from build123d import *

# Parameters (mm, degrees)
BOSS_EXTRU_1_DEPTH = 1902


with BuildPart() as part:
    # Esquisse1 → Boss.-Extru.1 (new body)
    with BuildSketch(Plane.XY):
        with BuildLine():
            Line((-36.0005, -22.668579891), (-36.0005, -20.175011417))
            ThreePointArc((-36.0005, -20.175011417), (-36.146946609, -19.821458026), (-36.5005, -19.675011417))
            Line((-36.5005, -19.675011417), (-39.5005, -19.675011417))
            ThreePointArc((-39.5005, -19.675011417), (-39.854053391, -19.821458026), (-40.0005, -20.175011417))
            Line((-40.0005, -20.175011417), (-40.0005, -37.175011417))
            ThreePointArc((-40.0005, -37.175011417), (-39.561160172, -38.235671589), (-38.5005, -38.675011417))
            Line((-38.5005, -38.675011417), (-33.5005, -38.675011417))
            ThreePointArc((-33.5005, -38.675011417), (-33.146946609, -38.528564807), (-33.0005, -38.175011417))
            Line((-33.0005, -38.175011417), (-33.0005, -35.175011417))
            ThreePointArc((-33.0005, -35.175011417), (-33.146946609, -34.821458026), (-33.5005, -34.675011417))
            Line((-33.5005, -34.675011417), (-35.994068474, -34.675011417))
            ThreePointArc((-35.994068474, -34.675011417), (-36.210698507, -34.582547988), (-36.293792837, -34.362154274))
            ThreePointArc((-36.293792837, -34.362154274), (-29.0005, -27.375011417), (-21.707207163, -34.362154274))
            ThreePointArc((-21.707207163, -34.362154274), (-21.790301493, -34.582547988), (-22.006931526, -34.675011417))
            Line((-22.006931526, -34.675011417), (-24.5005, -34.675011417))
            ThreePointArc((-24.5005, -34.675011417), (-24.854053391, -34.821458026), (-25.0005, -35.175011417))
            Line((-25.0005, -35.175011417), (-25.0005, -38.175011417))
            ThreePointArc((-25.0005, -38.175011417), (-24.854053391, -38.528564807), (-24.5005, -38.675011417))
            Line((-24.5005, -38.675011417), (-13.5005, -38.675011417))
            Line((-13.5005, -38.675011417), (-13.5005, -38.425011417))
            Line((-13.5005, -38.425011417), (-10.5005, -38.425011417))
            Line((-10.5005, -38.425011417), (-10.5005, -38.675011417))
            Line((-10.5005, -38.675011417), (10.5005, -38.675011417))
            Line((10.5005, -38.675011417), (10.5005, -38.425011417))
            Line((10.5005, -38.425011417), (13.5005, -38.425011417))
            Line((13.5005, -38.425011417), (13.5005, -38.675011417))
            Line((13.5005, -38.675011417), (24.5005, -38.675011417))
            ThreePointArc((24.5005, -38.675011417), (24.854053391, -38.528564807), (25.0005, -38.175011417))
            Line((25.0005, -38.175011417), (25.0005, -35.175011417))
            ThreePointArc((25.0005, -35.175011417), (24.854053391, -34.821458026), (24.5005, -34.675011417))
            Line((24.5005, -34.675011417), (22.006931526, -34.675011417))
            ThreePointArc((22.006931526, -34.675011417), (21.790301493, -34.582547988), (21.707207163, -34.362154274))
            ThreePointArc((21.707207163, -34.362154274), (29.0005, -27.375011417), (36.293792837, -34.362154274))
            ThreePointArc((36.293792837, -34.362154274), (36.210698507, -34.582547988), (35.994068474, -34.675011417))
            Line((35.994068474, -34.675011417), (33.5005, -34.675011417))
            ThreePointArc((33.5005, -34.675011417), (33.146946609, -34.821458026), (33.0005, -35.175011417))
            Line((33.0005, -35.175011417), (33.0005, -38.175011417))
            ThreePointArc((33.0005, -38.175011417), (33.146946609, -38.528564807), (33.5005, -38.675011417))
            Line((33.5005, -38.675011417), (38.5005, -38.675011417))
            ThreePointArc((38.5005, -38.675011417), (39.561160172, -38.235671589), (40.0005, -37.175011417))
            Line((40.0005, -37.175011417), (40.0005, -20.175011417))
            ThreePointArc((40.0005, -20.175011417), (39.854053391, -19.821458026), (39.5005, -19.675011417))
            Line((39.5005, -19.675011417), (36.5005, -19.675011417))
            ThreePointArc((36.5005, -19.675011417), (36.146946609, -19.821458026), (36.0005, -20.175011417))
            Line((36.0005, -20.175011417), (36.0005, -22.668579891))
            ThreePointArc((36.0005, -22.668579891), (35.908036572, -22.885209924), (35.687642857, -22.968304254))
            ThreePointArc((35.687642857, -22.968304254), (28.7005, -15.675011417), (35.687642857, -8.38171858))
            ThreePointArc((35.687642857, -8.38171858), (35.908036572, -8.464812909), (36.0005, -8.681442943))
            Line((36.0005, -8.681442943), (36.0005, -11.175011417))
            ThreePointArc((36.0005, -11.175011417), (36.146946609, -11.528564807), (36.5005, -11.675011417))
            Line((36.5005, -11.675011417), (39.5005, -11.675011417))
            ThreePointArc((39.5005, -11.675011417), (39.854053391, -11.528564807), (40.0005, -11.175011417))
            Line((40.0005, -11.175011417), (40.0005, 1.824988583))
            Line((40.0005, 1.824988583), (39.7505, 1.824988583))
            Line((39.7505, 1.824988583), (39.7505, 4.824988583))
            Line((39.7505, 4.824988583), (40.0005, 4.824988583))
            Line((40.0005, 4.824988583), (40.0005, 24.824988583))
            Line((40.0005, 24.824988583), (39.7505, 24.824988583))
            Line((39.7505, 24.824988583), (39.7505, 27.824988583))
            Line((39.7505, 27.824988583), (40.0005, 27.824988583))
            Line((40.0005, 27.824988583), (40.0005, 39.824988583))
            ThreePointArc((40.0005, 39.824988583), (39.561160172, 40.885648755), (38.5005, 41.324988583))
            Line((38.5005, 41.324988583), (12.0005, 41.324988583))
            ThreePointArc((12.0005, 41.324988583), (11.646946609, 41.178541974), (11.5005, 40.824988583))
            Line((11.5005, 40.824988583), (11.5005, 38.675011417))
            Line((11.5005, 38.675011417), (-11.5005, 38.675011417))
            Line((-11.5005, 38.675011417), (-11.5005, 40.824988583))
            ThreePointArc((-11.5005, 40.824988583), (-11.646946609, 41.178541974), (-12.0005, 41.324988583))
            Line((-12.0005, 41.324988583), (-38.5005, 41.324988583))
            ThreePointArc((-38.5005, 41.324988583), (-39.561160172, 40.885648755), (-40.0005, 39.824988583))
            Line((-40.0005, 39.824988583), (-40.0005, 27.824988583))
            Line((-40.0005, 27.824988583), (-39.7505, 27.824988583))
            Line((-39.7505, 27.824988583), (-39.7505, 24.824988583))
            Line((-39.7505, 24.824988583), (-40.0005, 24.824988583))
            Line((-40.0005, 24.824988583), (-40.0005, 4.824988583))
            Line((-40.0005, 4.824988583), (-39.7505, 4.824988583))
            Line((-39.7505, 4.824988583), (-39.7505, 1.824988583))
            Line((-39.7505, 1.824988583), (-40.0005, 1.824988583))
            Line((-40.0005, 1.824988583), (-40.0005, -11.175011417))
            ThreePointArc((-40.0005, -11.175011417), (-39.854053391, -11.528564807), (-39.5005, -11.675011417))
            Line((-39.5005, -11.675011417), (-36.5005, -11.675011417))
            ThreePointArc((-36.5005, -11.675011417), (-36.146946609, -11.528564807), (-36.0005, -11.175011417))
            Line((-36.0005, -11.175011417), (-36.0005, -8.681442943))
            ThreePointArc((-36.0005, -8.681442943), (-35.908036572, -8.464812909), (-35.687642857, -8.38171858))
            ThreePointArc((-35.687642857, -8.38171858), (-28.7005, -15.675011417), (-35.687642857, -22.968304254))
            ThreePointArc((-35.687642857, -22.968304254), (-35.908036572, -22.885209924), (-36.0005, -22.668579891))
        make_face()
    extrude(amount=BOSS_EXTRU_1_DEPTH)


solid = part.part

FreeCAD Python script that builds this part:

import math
import FreeCAD as App
import Part
import Sketcher

V = App.Vector

doc = App.newDocument("Part")
params = doc.addObject("Spreadsheet::Sheet", "Params")
for row, (alias, value) in enumerate([
    ("sketch1_radius", "0.5 mm"),
    ("sketch1_radius2", "1.5 mm"),
    ("sketch1_radius3", "0.3 mm"),
    ("sketch1_radius4", "7.3 mm"),
    ("sketch1_width", "3 mm"),
    ("pad1_length", "1902 mm"),
], start=1):
    params.set(f"A{row}", alias)
    params.set(f"B{row}", "=" + value)
    params.setAlias(f"B{row}", alias)

body = doc.addObject("PartDesign::Body", "Body")

# Sketch on XY plane
sketch1 = body.newObject("Sketcher::SketchObject", "Sketch")
sketch1.AttachmentSupport = (doc.getObject("XY_Plane"), [""])
sketch1.MapMode = "FlatFace"
sketch1.addGeometry(Part.LineSegment(V(-36, -22.67, 0), V(-36, -20.18, 0)), False)
sketch1.addGeometry(Part.ArcOfCircle(Part.Circle(V(-36.5, -20.18, 0), V(0, 0, 1), 0.5), math.radians(0), math.radians(90)), False)
sketch1.addGeometry(Part.LineSegment(V(-36.5, -19.68, 0), V(-39.5, -19.68, 0)), False)
sketch1.addGeometry(Part.ArcOfCircle(Part.Circle(V(-39.5, -20.18, 0), V(0, 0, 1), 0.5), math.radians(90), math.radians(180)), False)
sketch1.addGeometry(Part.LineSegment(V(-40, -20.18, 0), V(-40, -37.18, 0)), False)
sketch1.addGeometry(Part.ArcOfCircle(Part.Circle(V(-38.5, -37.18, 0), V(0, 0, 1), 1.5), math.radians(180), math.radians(270)), False)
sketch1.addGeometry(Part.LineSegment(V(-38.5, -38.68, 0), V(-33.5, -38.68, 0)), False)
sketch1.addGeometry(Part.ArcOfCircle(Part.Circle(V(-33.5, -38.18, 0), V(0, 0, 1), 0.5), math.radians(-90), math.radians(0)), False)
sketch1.addGeometry(Part.LineSegment(V(-33, -38.18, 0), V(-33, -35.18, 0)), False)
sketch1.addGeometry(Part.ArcOfCircle(Part.Circle(V(-33.5, -35.18, 0), V(0, 0, 1), 0.5), math.radians(0), math.radians(90)), False)
sketch1.addGeometry(Part.LineSegment(V(-33.5, -34.68, 0), V(-35.99, -34.68, 0)), False)
sketch1.addGeometry(Part.ArcOfCircle(Part.Circle(V(-35.99, -34.38, 0), V(0, 0, 1), 0.3), math.radians(178), math.radians(270)), False)
sketch1.addGeometry(Part.ArcOfCircle(Part.Circle(V(-29, -34.68, 0), V(0, 0, 1), 7.3), math.radians(2), math.radians(178)), False)
sketch1.addGeometry(Part.ArcOfCircle(Part.Circle(V(-22.01, -34.38, 0), V(0, 0, 1), 0.3), math.radians(-90), math.radians(2)), False)
sketch1.addGeometry(Part.LineSegment(V(-22.01, -34.68, 0), V(-24.5, -34.68, 0)), False)
sketch1.addGeometry(Part.ArcOfCircle(Part.Circle(V(-24.5, -35.18, 0), V(0, 0, 1), 0.5), math.radians(90), math.radians(180)), False)
sketch1.addGeometry(Part.LineSegment(V(-25, -35.18, 0), V(-25, -38.18, 0)), False)
sketch1.addGeometry(Part.ArcOfCircle(Part.Circle(V(-24.5, -38.18, 0), V(0, 0, 1), 0.5), math.radians(180), math.radians(270)), False)
sketch1.addGeometry(Part.LineSegment(V(-24.5, -38.68, 0), V(-13.5, -38.68, 0)), False)
sketch1.addGeometry(Part.LineSegment(V(-13.5, -38.68, 0), V(-13.5, -38.43, 0)), False)
sketch1.addGeometry(Part.LineSegment(V(-13.5, -38.43, 0), V(-10.5, -38.43, 0)), False)
sketch1.addGeometry(Part.LineSegment(V(-10.5, -38.43, 0), V(-10.5, -38.68, 0)), False)
sketch1.addGeometry(Part.LineSegment(V(-10.5, -38.68, 0), V(10.5, -38.68, 0)), False)
sketch1.addGeometry(Part.LineSegment(V(10.5, -38.68, 0), V(10.5, -38.43, 0)), False)
sketch1.addGeometry(Part.LineSegment(V(10.5, -38.43, 0), V(13.5, -38.43, 0)), False)
sketch1.addGeometry(Part.LineSegment(V(13.5, -38.43, 0), V(13.5, -38.68, 0)), False)
sketch1.addGeometry(Part.LineSegment(V(13.5, -38.68, 0), V(24.5, -38.68, 0)), False)
sketch1.addGeometry(Part.ArcOfCircle(Part.Circle(V(24.5, -38.18, 0), V(0, 0, 1), 0.5), math.radians(-90), math.radians(0)), False)
sketch1.addGeometry(Part.LineSegment(V(25, -38.18, 0), V(25, -35.18, 0)), False)
sketch1.addGeometry(Part.ArcOfCircle(Part.Circle(V(24.5, -35.18, 0), V(0, 0, 1), 0.5), math.radians(0), math.radians(90)), False)
sketch1.addGeometry(Part.LineSegment(V(24.5, -34.68, 0), V(22.01, -34.68, 0)), False)
sketch1.addGeometry(Part.ArcOfCircle(Part.Circle(V(22.01, -34.38, 0), V(0, 0, 1), 0.3), math.radians(178), math.radians(270)), False)
sketch1.addGeometry(Part.ArcOfCircle(Part.Circle(V(29, -34.68, 0), V(0, 0, 1), 7.3), math.radians(2), math.radians(178)), False)
sketch1.addGeometry(Part.ArcOfCircle(Part.Circle(V(35.99, -34.38, 0), V(0, 0, 1), 0.3), math.radians(-90), math.radians(2)), False)
sketch1.addGeometry(Part.LineSegment(V(35.99, -34.68, 0), V(33.5, -34.68, 0)), False)
sketch1.addGeometry(Part.ArcOfCircle(Part.Circle(V(33.5, -35.18, 0), V(0, 0, 1), 0.5), math.radians(90), math.radians(180)), False)
sketch1.addGeometry(Part.LineSegment(V(33, -35.18, 0), V(33, -38.18, 0)), False)
sketch1.addGeometry(Part.ArcOfCircle(Part.Circle(V(33.5, -38.18, 0), V(0, 0, 1), 0.5), math.radians(180), math.radians(270)), False)
sketch1.addGeometry(Part.LineSegment(V(33.5, -38.68, 0), V(38.5, -38.68, 0)), False)
sketch1.addGeometry(Part.ArcOfCircle(Part.Circle(V(38.5, -37.18, 0), V(0, 0, 1), 1.5), math.radians(-90), math.radians(0)), False)
sketch1.addGeometry(Part.LineSegment(V(40, -37.18, 0), V(40, -20.18, 0)), False)
sketch1.addGeometry(Part.ArcOfCircle(Part.Circle(V(39.5, -20.18, 0), V(0, 0, 1), 0.5), math.radians(0), math.radians(90)), False)
sketch1.addGeometry(Part.LineSegment(V(39.5, -19.68, 0), V(36.5, -19.68, 0)), False)
sketch1.addGeometry(Part.ArcOfCircle(Part.Circle(V(36.5, -20.18, 0), V(0, 0, 1), 0.5), math.radians(90), math.radians(180)), False)
sketch1.addGeometry(Part.LineSegment(V(36, -20.18, 0), V(36, -22.67, 0)), False)
sketch1.addGeometry(Part.ArcOfCircle(Part.Circle(V(35.7, -22.67, 0), V(0, 0, 1), 0.3), math.radians(-92), math.radians(0)), False)
sketch1.addGeometry(Part.ArcOfCircle(Part.Circle(V(36, -15.68, 0), V(0, 0, 1), 7.3), math.radians(92), math.radians(268)), False)
sketch1.addGeometry(Part.ArcOfCircle(Part.Circle(V(35.7, -8.68, 0), V(0, 0, 1), 0.3), math.radians(0), math.radians(92)), False)
sketch1.addGeometry(Part.LineSegment(V(36, -8.68, 0), V(36, -11.18, 0)), False)
sketch1.addGeometry(Part.ArcOfCircle(Part.Circle(V(36.5, -11.18, 0), V(0, 0, 1), 0.5), math.radians(180), math.radians(270)), False)
sketch1.addGeometry(Part.LineSegment(V(36.5, -11.68, 0), V(39.5, -11.68, 0)), False)
sketch1.addGeometry(Part.ArcOfCircle(Part.Circle(V(39.5, -11.18, 0), V(0, 0, 1), 0.5), math.radians(-90), math.radians(0)), False)
sketch1.addGeometry(Part.LineSegment(V(40, -11.18, 0), V(40, 1.82, 0)), False)
sketch1.addGeometry(Part.LineSegment(V(40, 1.82, 0), V(39.75, 1.82, 0)), False)
sketch1.addGeometry(Part.LineSegment(V(39.75, 1.82, 0), V(39.75, 4.82, 0)), False)
sketch1.addGeometry(Part.LineSegment(V(39.75, 4.82, 0), V(40, 4.82, 0)), False)
sketch1.addGeometry(Part.LineSegment(V(40, 4.82, 0), V(40, 24.82, 0)), False)
sketch1.addGeometry(Part.LineSegment(V(40, 24.82, 0), V(39.75, 24.82, 0)), False)
sketch1.addGeometry(Part.LineSegment(V(39.75, 24.82, 0), V(39.75, 27.82, 0)), False)
sketch1.addGeometry(Part.LineSegment(V(39.75, 27.82, 0), V(40, 27.82, 0)), False)
sketch1.addGeometry(Part.LineSegment(V(40, 27.82, 0), V(40, 39.82, 0)), False)
sketch1.addGeometry(Part.ArcOfCircle(Part.Circle(V(38.5, 39.82, 0), V(0, 0, 1), 1.5), math.radians(0), math.radians(90)), False)
sketch1.addGeometry(Part.LineSegment(V(38.5, 41.32, 0), V(12, 41.32, 0)), False)
sketch1.addGeometry(Part.ArcOfCircle(Part.Circle(V(12, 40.82, 0), V(0, 0, 1), 0.5), math.radians(90), math.radians(180)), False)
sketch1.addGeometry(Part.LineSegment(V(11.5, 40.82, 0), V(11.5, 38.68, 0)), False)
sketch1.addGeometry(Part.LineSegment(V(11.5, 38.68, 0), V(-11.5, 38.68, 0)), False)
sketch1.addGeometry(Part.LineSegment(V(-11.5, 38.68, 0), V(-11.5, 40.82, 0)), False)
sketch1.addGeometry(Part.ArcOfCircle(Part.Circle(V(-12, 40.82, 0), V(0, 0, 1), 0.5), math.radians(0), math.radians(90)), False)
sketch1.addGeometry(Part.LineSegment(V(-12, 41.32, 0), V(-38.5, 41.32, 0)), False)
sketch1.addGeometry(Part.ArcOfCircle(Part.Circle(V(-38.5, 39.82, 0), V(0, 0, 1), 1.5), math.radians(90), math.radians(180)), False)
sketch1.addGeometry(Part.LineSegment(V(-40, 39.82, 0), V(-40, 27.82, 0)), False)
sketch1.addGeometry(Part.LineSegment(V(-40, 27.82, 0), V(-39.75, 27.82, 0)), False)
sketch1.addGeometry(Part.LineSegment(V(-39.75, 27.82, 0), V(-39.75, 24.82, 0)), False)
sketch1.addGeometry(Part.LineSegment(V(-39.75, 24.82, 0), V(-40, 24.82, 0)), False)
sketch1.addGeometry(Part.LineSegment(V(-40, 24.82, 0), V(-40, 4.82, 0)), False)
sketch1.addGeometry(Part.LineSegment(V(-40, 4.82, 0), V(-39.75, 4.82, 0)), False)
sketch1.addGeometry(Part.LineSegment(V(-39.75, 4.82, 0), V(-39.75, 1.82, 0)), False)
sketch1.addGeometry(Part.LineSegment(V(-39.75, 1.82, 0), V(-40, 1.82, 0)), False)
sketch1.addGeometry(Part.LineSegment(V(-40, 1.82, 0), V(-40, -11.18, 0)), False)
sketch1.addGeometry(Part.ArcOfCircle(Part.Circle(V(-39.5, -11.18, 0), V(0, 0, 1), 0.5), math.radians(180), math.radians(270)), False)
sketch1.addGeometry(Part.LineSegment(V(-39.5, -11.68, 0), V(-36.5, -11.68, 0)), False)
sketch1.addGeometry(Part.ArcOfCircle(Part.Circle(V(-36.5, -11.18, 0), V(0, 0, 1), 0.5), math.radians(-90), math.radians(0)), False)
sketch1.addGeometry(Part.LineSegment(V(-36, -11.18, 0), V(-36, -8.68, 0)), False)
sketch1.addGeometry(Part.ArcOfCircle(Part.Circle(V(-35.7, -8.68, 0), V(0, 0, 1), 0.3), math.radians(88), math.radians(180)), False)
sketch1.addGeometry(Part.ArcOfCircle(Part.Circle(V(-36, -15.68, 0), V(0, 0, 1), 7.3), math.radians(-88), math.radians(88)), False)
sketch1.addGeometry(Part.ArcOfCircle(Part.Circle(V(-35.7, -22.67, 0), V(0, 0, 1), 0.3), math.radians(180), math.radians(272)), False)
sketch1.addConstraint(Sketcher.Constraint("Tangent", 0, 2, 1, 1))
sketch1.addConstraint(Sketcher.Constraint("Tangent", 1, 2, 2, 1))
sketch1.addConstraint(Sketcher.Constraint("Tangent", 2, 2, 3, 1))
sketch1.addConstraint(Sketcher.Constraint("Tangent", 3, 2, 4, 1))
sketch1.addConstraint(Sketcher.Constraint("Tangent", 4, 2, 5, 1))
sketch1.addConstraint(Sketcher.Constraint("Tangent", 5, 2, 6, 1))
sketch1.addConstraint(Sketcher.Constraint("Tangent", 6, 2, 7, 1))
sketch1.addConstraint(Sketcher.Constraint("Tangent", 7, 2, 8, 1))
sketch1.addConstraint(Sketcher.Constraint("Tangent", 8, 2, 9, 1))
sketch1.addConstraint(Sketcher.Constraint("Tangent", 9, 2, 10, 1))
sketch1.addConstraint(Sketcher.Constraint("Tangent", 10, 2, 11, 2))
sketch1.addConstraint(Sketcher.Constraint("Tangent", 11, 1, 12, 2))
sketch1.addConstraint(Sketcher.Constraint("Tangent", 12, 1, 13, 2))
sketch1.addConstraint(Sketcher.Constraint("Tangent", 13, 1, 14, 1))
sketch1.addConstraint(Sketcher.Constraint("Tangent", 14, 2, 15, 1))
sketch1.addConstraint(Sketcher.Constraint("Tangent", 15, 2, 16, 1))
sketch1.addConstraint(Sketcher.Constraint("Tangent", 16, 2, 17, 1))
sketch1.addConstraint(Sketcher.Constraint("Tangent", 17, 2, 18, 1))
sketch1.addConstraint(Sketcher.Constraint("Coincident", 18, 2, 19, 1))
sketch1.addConstraint(Sketcher.Constraint("Coincident", 19, 2, 20, 1))
sketch1.addConstraint(Sketcher.Constraint("Coincident", 20, 2, 21, 1))
sketch1.addConstraint(Sketcher.Constraint("Coincident", 21, 2, 22, 1))
sketch1.addConstraint(Sketcher.Constraint("Coincident", 22, 2, 23, 1))
sketch1.addConstraint(Sketcher.Constraint("Coincident", 23, 2, 24, 1))
sketch1.addConstraint(Sketcher.Constraint("Coincident", 24, 2, 25, 1))
sketch1.addConstraint(Sketcher.Constraint("Coincident", 25, 2, 26, 1))
sketch1.addConstraint(Sketcher.Constraint("Tangent", 26, 2, 27, 1))
sketch1.addConstraint(Sketcher.Constraint("Tangent", 27, 2, 28, 1))
sketch1.addConstraint(Sketcher.Constraint("Tangent", 28, 2, 29, 1))
sketch1.addConstraint(Sketcher.Constraint("Tangent", 29, 2, 30, 1))
sketch1.addConstraint(Sketcher.Constraint("Tangent", 30, 2, 31, 2))
sketch1.addConstraint(Sketcher.Constraint("Tangent", 31, 1, 32, 2))
sketch1.addConstraint(Sketcher.Constraint("Tangent", 32, 1, 33, 2))
sketch1.addConstraint(Sketcher.Constraint("Tangent", 33, 1, 34, 1))
sketch1.addConstraint(Sketcher.Constraint("Tangent", 34, 2, 35, 1))
sketch1.addConstraint(Sketcher.Constraint("Tangent", 35, 2, 36, 1))
sketch1.addConstraint(Sketcher.Constraint("Tangent", 36, 2, 37, 1))
sketch1.addConstraint(Sketcher.Constraint("Tangent", 37, 2, 38, 1))
sketch1.addConstraint(Sketcher.Constraint("Tangent", 38, 2, 39, 1))
sketch1.addConstraint(Sketcher.Constraint("Tangent", 39, 2, 40, 1))
sketch1.addConstraint(Sketcher.Constraint("Tangent", 40, 2, 41, 1))
sketch1.addConstraint(Sketcher.Constraint("Tangent", 41, 2, 42, 1))
sketch1.addConstraint(Sketcher.Constraint("Tangent", 42, 2, 43, 1))
sketch1.addConstraint(Sketcher.Constraint("Tangent", 43, 2, 44, 1))
sketch1.addConstraint(Sketcher.Constraint("Tangent", 44, 2, 45, 2))
sketch1.addConstraint(Sketcher.Constraint("Tangent", 45, 1, 46, 2))
sketch1.addConstraint(Sketcher.Constraint("Tangent", 46, 1, 47, 2))
sketch1.addConstraint(Sketcher.Constraint("Tangent", 47, 1, 48, 1))
sketch1.addConstraint(Sketcher.Constraint("Tangent", 48, 2, 49, 1))
sketch1.addConstraint(Sketcher.Constraint("Tangent", 49, 2, 50, 1))
sketch1.addConstraint(Sketcher.Constraint("Tangent", 50, 2, 51, 1))
sketch1.addConstraint(Sketcher.Constraint("Tangent", 51, 2, 52, 1))
sketch1.addConstraint(Sketcher.Constraint("Coincident", 52, 2, 53, 1))
sketch1.addConstraint(Sketcher.Constraint("Coincident", 53, 2, 54, 1))
sketch1.addConstraint(Sketcher.Constraint("Coincident", 54, 2, 55, 1))
sketch1.addConstraint(Sketcher.Constraint("Coincident", 55, 2, 56, 1))
sketch1.addConstraint(Sketcher.Constraint("Coincident", 56, 2, 57, 1))
sketch1.addConstraint(Sketcher.Constraint("Coincident", 57, 2, 58, 1))
sketch1.addConstraint(Sketcher.Constraint("Coincident", 58, 2, 59, 1))
sketch1.addConstraint(Sketcher.Constraint("Coincident", 59, 2, 60, 1))
sketch1.addConstraint(Sketcher.Constraint("Tangent", 60, 2, 61, 1))
sketch1.addConstraint(Sketcher.Constraint("Tangent", 61, 2, 62, 1))
sketch1.addConstraint(Sketcher.Constraint("Tangent", 62, 2, 63, 1))
sketch1.addConstraint(Sketcher.Constraint("Tangent", 63, 2, 64, 1))
sketch1.addConstraint(Sketcher.Constraint("Coincident", 64, 2, 65, 1))
sketch1.addConstraint(Sketcher.Constraint("Coincident", 65, 2, 66, 1))
sketch1.addConstraint(Sketcher.Constraint("Tangent", 66, 2, 67, 1))
sketch1.addConstraint(Sketcher.Constraint("Tangent", 67, 2, 68, 1))
sketch1.addConstraint(Sketcher.Constraint("Tangent", 68, 2, 69, 1))
sketch1.addConstraint(Sketcher.Constraint("Tangent", 69, 2, 70, 1))
sketch1.addConstraint(Sketcher.Constraint("Coincident", 70, 2, 71, 1))
sketch1.addConstraint(Sketcher.Constraint("Coincident", 71, 2, 72, 1))
sketch1.addConstraint(Sketcher.Constraint("Coincident", 72, 2, 73, 1))
sketch1.addConstraint(Sketcher.Constraint("Coincident", 73, 2, 74, 1))
sketch1.addConstraint(Sketcher.Constraint("Coincident", 74, 2, 75, 1))
sketch1.addConstraint(Sketcher.Constraint("Coincident", 75, 2, 76, 1))
sketch1.addConstraint(Sketcher.Constraint("Coincident", 76, 2, 77, 1))
sketch1.addConstraint(Sketcher.Constraint("Coincident", 77, 2, 78, 1))
sketch1.addConstraint(Sketcher.Constraint("Tangent", 78, 2, 79, 1))
sketch1.addConstraint(Sketcher.Constraint("Tangent", 79, 2, 80, 1))
sketch1.addConstraint(Sketcher.Constraint("Tangent", 80, 2, 81, 1))
sketch1.addConstraint(Sketcher.Constraint("Tangent", 81, 2, 82, 1))
sketch1.addConstraint(Sketcher.Constraint("Tangent", 82, 2, 83, 2))
sketch1.addConstraint(Sketcher.Constraint("Tangent", 83, 1, 84, 2))
sketch1.addConstraint(Sketcher.Constraint("Tangent", 84, 1, 85, 2))
sketch1.addConstraint(Sketcher.Constraint("Tangent", 85, 1, 0, 1))
sketch1.addConstraint(Sketcher.Constraint("Vertical", 0))
sketch1.addConstraint(Sketcher.Constraint("Horizontal", 2))
sketch1.addConstraint(Sketcher.Constraint("Vertical", 4))
sketch1.addConstraint(Sketcher.Constraint("Horizontal", 6))
sketch1.addConstraint(Sketcher.Constraint("Vertical", 8))
sketch1.addConstraint(Sketcher.Constraint("Horizontal", 10))
sketch1.addConstraint(Sketcher.Constraint("Horizontal", 14))
sketch1.addConstraint(Sketcher.Constraint("Vertical", 16))
sketch1.addConstraint(Sketcher.Constraint("Horizontal", 18))
sketch1.addConstraint(Sketcher.Constraint("Vertical", 19))
sketch1.addConstraint(Sketcher.Constraint("Horizontal", 20))
sketch1.addConstraint(Sketcher.Constraint("Vertical", 21))
sketch1.addConstraint(Sketcher.Constraint("Horizontal", 22))
sketch1.addConstraint(Sketcher.Constraint("Vertical", 23))
sketch1.addConstraint(Sketcher.Constraint("Horizontal", 24))
sketch1.addConstraint(Sketcher.Constraint("Vertical", 25))
sketch1.addConstraint(Sketcher.Constraint("Horizontal", 26))
sketch1.addConstraint(Sketcher.Constraint("Vertical", 28))
sketch1.addConstraint(Sketcher.Constraint("Horizontal", 30))
sketch1.addConstraint(Sketcher.Constraint("Horizontal", 34))
sketch1.addConstraint(Sketcher.Constraint("Vertical", 36))
sketch1.addConstraint(Sketcher.Constraint("Horizontal", 38))
sketch1.addConstraint(Sketcher.Constraint("Vertical", 40))
sketch1.addConstraint(Sketcher.Constraint("Horizontal", 42))
sketch1.addConstraint(Sketcher.Constraint("Vertical", 44))
sketch1.addConstraint(Sketcher.Constraint("Vertical", 48))
sketch1.addConstraint(Sketcher.Constraint("Horizontal", 50))
sketch1.addConstraint(Sketcher.Constraint("Vertical", 52))
sketch1.addConstraint(Sketcher.Constraint("Horizontal", 53))
sketch1.addConstraint(Sketcher.Constraint("Vertical", 54))
sketch1.addConstraint(Sketcher.Constraint("Horizontal", 55))
sketch1.addConstraint(Sketcher.Constraint("Vertical", 56))
sketch1.addConstraint(Sketcher.Constraint("Horizontal", 57))
sketch1.addConstraint(Sketcher.Constraint("Vertical", 58))
sketch1.addConstraint(Sketcher.Constraint("Horizontal", 59))
sketch1.addConstraint(Sketcher.Constraint("Vertical", 60))
sketch1.addConstraint(Sketcher.Constraint("Horizontal", 62))
sketch1.addConstraint(Sketcher.Constraint("Vertical", 64))
sketch1.addConstraint(Sketcher.Constraint("Horizontal", 65))
sketch1.addConstraint(Sketcher.Constraint("Vertical", 66))
sketch1.addConstraint(Sketcher.Constraint("Horizontal", 68))
sketch1.addConstraint(Sketcher.Constraint("Vertical", 70))
sketch1.addConstraint(Sketcher.Constraint("Horizontal", 71))
sketch1.addConstraint(Sketcher.Constraint("Vertical", 72))
sketch1.addConstraint(Sketcher.Constraint("Horizontal", 73))
sketch1.addConstraint(Sketcher.Constraint("Vertical", 74))
sketch1.addConstraint(Sketcher.Constraint("Horizontal", 75))
sketch1.addConstraint(Sketcher.Constraint("Vertical", 76))
sketch1.addConstraint(Sketcher.Constraint("Horizontal", 77))
sketch1.addConstraint(Sketcher.Constraint("Vertical", 78))
sketch1.addConstraint(Sketcher.Constraint("Horizontal", 80))
sketch1.addConstraint(Sketcher.Constraint("Vertical", 82))
sketch1.addConstraint(Sketcher.Constraint("Equal", 1, 3))
sketch1.addConstraint(Sketcher.Constraint("Equal", 3, 7))
sketch1.addConstraint(Sketcher.Constraint("Equal", 7, 9))
sketch1.addConstraint(Sketcher.Constraint("Equal", 11, 13))
sketch1.addConstraint(Sketcher.Constraint("Equal", 9, 15))
sketch1.addConstraint(Sketcher.Constraint("Equal", 15, 17))
sketch1.addConstraint(Sketcher.Constraint("Equal", 17, 27))
sketch1.addConstraint(Sketcher.Constraint("Equal", 27, 29))
sketch1.addConstraint(Sketcher.Constraint("Equal", 13, 31))
sketch1.addConstraint(Sketcher.Constraint("Equal", 12, 32))
sketch1.addConstraint(Sketcher.Constraint("Equal", 31, 33))
sketch1.addConstraint(Sketcher.Constraint("Equal", 29, 35))
sketch1.addConstraint(Sketcher.Constraint("Equal", 35, 37))
sketch1.addConstraint(Sketcher.Constraint("Equal", 5, 39))
sketch1.addConstraint(Sketcher.Constraint("Equal", 37, 41))
sketch1.addConstraint(Sketcher.Constraint("Equal", 41, 43))
sketch1.addConstraint(Sketcher.Constraint("Equal", 33, 45))
sketch1.addConstraint(Sketcher.Constraint("Equal", 32, 46))
sketch1.addConstraint(Sketcher.Constraint("Equal", 45, 47))
sketch1.addConstraint(Sketcher.Constraint("Equal", 43, 49))
sketch1.addConstraint(Sketcher.Constraint("Equal", 49, 51))
sketch1.addConstraint(Sketcher.Constraint("Equal", 39, 61))
sketch1.addConstraint(Sketcher.Constraint("Equal", 51, 63))
sketch1.addConstraint(Sketcher.Constraint("Equal", 63, 67))
sketch1.addConstraint(Sketcher.Constraint("Equal", 61, 69))
sketch1.addConstraint(Sketcher.Constraint("Equal", 67, 79))
sketch1.addConstraint(Sketcher.Constraint("Equal", 79, 81))
sketch1.addConstraint(Sketcher.Constraint("Equal", 47, 83))
sketch1.addConstraint(Sketcher.Constraint("Equal", 46, 84))
sketch1.addConstraint(Sketcher.Constraint("Equal", 83, 85))
sketch1.addConstraint(Sketcher.Constraint("Symmetric", 17, 3, 27, 3, -2))
sketch1.addConstraint(Sketcher.Constraint("Symmetric", 13, 3, 31, 3, -2))
sketch1.addConstraint(Sketcher.Constraint("Symmetric", 11, 3, 33, 3, -2))
sketch1.addConstraint(Sketcher.Constraint("Symmetric", 7, 3, 37, 3, -2))
sketch1.addConstraint(Sketcher.Constraint("Symmetric", 3, 3, 41, 3, -2))
sketch1.addConstraint(Sketcher.Constraint("Symmetric", 63, 3, 67, 3, -2))
sketch1.addConstraint(Sketcher.Constraint("Symmetric", 51, 3, 79, 3, -2))
sketch1.addConstraint(Sketcher.Constraint("Symmetric", 47, 3, 83, 3, -2))
sketch1.addConstraint(Sketcher.Constraint("Symmetric", 45, 3, 85, 3, -2))
sketch1.addConstraint(Sketcher.Constraint("Symmetric", 20, 2, 23, 2, -2))
sketch1.addConstraint(Sketcher.Constraint("Symmetric", 59, 2, 70, 2, -2))
sketch1.addConstraint(Sketcher.Constraint("Symmetric", 57, 2, 72, 2, -2))
sketch1.addConstraint(Sketcher.Constraint("Symmetric", 55, 2, 74, 2, -2))
sketch1.addConstraint(Sketcher.Constraint("Symmetric", 53, 2, 76, 2, -2))
sketch1.addConstraint(Sketcher.Constraint("Horizontal", 11, 3, 13, 3))
sketch1.addConstraint(Sketcher.Constraint("Horizontal", 7, 3, 17, 3))
sketch1.addConstraint(Sketcher.Constraint("Horizontal", 32, 3, 9, 2))
sketch1.addConstraint(Sketcher.Constraint("Horizontal", 18, 2, 21, 2))
sketch1.addConstraint(Sketcher.Constraint("Vertical", 45, 3, 47, 3))
sketch1.addConstraint(Sketcher.Constraint("Vertical", 41, 3, 51, 3))
sketch1.addConstraint(Sketcher.Constraint("Vertical", 39, 3, 61, 3))
sketch1.addConstraint(Sketcher.Constraint("Vertical", 84, 3, 0, 2))
sketch1.addConstraint(Sketcher.Constraint("Vertical", 52, 2, 55, 2))
sketch1.addConstraint(Sketcher.Constraint("Vertical", 54, 2, 57, 2))
sketch1.addConstraint(Sketcher.Constraint("Equal", 10, 14))
sketch1.addConstraint(Sketcher.Constraint("Equal", 2, 20))
sketch1.addConstraint(Sketcher.Constraint("Equal", 20, 24))
sketch1.addConstraint(Sketcher.Constraint("Equal", 34, 0))
sketch1.addConstraint(Sketcher.Constraint("Equal", 80, 8))
sketch1.addConstraint(Sketcher.Constraint("Equal", 77, 19))
sketch1.addConstraint(Sketcher.Constraint("Equal", 44, 48))
sketch1.addConstraint(Sketcher.Constraint("Equal", 36, 54))
sketch1.addConstraint(Sketcher.Constraint("Equal", 54, 58))
sketch1.addConstraint(Sketcher.Constraint("Radius", 1, 0.5))
sketch1.addConstraint(Sketcher.Constraint("Radius", 5, 1.5))
sketch1.addConstraint(Sketcher.Constraint("Radius", 11, 0.3))
sketch1.addConstraint(Sketcher.Constraint("Radius", 12, 7.3))
sketch1.addConstraint(Sketcher.Constraint("DistanceX", 2, 2, 2, 1, 3.0))
sketch1.addConstraint(Sketcher.Constraint("DistanceX", 6, 1, 6, 2, 5.0))
sketch1.addConstraint(Sketcher.Constraint("DistanceX", 18, 1, 18, 2, 11.0))
sketch1.addConstraint(Sketcher.Constraint("DistanceY", 4, 2, 4, 1, 17.0))
sketch1.addConstraint(Sketcher.Constraint("DistanceY", 52, 1, 52, 2, 13.0))
sketch1.addConstraint(Sketcher.Constraint("DistanceY", 56, 1, 56, 2, 20.0))
sketch1.addConstraint(Sketcher.Constraint("DistanceY", 60, 1, 60, 2, 12.0))
sketch1.addConstraint(Sketcher.Constraint("DistanceX", 62, 2, 62, 1, 26.5))
sketch1.addConstraint(Sketcher.Constraint("DistanceX", 53, 2, 53, 1, 0.25))
sketch1.addConstraint(Sketcher.Constraint("DistanceX", 22, 1, 22, 2, 21.001))
sketch1.addConstraint(Sketcher.Constraint("DistanceX", 65, 2, 65, 1, 23.001))
sketch1.addConstraint(Sketcher.Constraint("DistanceY", 64, 2, 64, 1, 2.149977))
sketch1.addConstraint(Sketcher.Constraint("DistanceY", 1, 3, -1, 1, 20.175011))
sketch1.setExpression("Constraints[201]", "Params.sketch1_radius")
sketch1.setExpression("Constraints[202]", "Params.sketch1_radius2")
sketch1.setExpression("Constraints[203]", "Params.sketch1_radius3")
sketch1.setExpression("Constraints[204]", "Params.sketch1_radius4")
sketch1.setExpression("Constraints[205]", "Params.sketch1_width")
pad1 = body.newObject("PartDesign::Pad", "Pad")
pad1.Profile = sketch1
pad1.setExpression("Length", "Params.pad1_length")

doc.recompute()
